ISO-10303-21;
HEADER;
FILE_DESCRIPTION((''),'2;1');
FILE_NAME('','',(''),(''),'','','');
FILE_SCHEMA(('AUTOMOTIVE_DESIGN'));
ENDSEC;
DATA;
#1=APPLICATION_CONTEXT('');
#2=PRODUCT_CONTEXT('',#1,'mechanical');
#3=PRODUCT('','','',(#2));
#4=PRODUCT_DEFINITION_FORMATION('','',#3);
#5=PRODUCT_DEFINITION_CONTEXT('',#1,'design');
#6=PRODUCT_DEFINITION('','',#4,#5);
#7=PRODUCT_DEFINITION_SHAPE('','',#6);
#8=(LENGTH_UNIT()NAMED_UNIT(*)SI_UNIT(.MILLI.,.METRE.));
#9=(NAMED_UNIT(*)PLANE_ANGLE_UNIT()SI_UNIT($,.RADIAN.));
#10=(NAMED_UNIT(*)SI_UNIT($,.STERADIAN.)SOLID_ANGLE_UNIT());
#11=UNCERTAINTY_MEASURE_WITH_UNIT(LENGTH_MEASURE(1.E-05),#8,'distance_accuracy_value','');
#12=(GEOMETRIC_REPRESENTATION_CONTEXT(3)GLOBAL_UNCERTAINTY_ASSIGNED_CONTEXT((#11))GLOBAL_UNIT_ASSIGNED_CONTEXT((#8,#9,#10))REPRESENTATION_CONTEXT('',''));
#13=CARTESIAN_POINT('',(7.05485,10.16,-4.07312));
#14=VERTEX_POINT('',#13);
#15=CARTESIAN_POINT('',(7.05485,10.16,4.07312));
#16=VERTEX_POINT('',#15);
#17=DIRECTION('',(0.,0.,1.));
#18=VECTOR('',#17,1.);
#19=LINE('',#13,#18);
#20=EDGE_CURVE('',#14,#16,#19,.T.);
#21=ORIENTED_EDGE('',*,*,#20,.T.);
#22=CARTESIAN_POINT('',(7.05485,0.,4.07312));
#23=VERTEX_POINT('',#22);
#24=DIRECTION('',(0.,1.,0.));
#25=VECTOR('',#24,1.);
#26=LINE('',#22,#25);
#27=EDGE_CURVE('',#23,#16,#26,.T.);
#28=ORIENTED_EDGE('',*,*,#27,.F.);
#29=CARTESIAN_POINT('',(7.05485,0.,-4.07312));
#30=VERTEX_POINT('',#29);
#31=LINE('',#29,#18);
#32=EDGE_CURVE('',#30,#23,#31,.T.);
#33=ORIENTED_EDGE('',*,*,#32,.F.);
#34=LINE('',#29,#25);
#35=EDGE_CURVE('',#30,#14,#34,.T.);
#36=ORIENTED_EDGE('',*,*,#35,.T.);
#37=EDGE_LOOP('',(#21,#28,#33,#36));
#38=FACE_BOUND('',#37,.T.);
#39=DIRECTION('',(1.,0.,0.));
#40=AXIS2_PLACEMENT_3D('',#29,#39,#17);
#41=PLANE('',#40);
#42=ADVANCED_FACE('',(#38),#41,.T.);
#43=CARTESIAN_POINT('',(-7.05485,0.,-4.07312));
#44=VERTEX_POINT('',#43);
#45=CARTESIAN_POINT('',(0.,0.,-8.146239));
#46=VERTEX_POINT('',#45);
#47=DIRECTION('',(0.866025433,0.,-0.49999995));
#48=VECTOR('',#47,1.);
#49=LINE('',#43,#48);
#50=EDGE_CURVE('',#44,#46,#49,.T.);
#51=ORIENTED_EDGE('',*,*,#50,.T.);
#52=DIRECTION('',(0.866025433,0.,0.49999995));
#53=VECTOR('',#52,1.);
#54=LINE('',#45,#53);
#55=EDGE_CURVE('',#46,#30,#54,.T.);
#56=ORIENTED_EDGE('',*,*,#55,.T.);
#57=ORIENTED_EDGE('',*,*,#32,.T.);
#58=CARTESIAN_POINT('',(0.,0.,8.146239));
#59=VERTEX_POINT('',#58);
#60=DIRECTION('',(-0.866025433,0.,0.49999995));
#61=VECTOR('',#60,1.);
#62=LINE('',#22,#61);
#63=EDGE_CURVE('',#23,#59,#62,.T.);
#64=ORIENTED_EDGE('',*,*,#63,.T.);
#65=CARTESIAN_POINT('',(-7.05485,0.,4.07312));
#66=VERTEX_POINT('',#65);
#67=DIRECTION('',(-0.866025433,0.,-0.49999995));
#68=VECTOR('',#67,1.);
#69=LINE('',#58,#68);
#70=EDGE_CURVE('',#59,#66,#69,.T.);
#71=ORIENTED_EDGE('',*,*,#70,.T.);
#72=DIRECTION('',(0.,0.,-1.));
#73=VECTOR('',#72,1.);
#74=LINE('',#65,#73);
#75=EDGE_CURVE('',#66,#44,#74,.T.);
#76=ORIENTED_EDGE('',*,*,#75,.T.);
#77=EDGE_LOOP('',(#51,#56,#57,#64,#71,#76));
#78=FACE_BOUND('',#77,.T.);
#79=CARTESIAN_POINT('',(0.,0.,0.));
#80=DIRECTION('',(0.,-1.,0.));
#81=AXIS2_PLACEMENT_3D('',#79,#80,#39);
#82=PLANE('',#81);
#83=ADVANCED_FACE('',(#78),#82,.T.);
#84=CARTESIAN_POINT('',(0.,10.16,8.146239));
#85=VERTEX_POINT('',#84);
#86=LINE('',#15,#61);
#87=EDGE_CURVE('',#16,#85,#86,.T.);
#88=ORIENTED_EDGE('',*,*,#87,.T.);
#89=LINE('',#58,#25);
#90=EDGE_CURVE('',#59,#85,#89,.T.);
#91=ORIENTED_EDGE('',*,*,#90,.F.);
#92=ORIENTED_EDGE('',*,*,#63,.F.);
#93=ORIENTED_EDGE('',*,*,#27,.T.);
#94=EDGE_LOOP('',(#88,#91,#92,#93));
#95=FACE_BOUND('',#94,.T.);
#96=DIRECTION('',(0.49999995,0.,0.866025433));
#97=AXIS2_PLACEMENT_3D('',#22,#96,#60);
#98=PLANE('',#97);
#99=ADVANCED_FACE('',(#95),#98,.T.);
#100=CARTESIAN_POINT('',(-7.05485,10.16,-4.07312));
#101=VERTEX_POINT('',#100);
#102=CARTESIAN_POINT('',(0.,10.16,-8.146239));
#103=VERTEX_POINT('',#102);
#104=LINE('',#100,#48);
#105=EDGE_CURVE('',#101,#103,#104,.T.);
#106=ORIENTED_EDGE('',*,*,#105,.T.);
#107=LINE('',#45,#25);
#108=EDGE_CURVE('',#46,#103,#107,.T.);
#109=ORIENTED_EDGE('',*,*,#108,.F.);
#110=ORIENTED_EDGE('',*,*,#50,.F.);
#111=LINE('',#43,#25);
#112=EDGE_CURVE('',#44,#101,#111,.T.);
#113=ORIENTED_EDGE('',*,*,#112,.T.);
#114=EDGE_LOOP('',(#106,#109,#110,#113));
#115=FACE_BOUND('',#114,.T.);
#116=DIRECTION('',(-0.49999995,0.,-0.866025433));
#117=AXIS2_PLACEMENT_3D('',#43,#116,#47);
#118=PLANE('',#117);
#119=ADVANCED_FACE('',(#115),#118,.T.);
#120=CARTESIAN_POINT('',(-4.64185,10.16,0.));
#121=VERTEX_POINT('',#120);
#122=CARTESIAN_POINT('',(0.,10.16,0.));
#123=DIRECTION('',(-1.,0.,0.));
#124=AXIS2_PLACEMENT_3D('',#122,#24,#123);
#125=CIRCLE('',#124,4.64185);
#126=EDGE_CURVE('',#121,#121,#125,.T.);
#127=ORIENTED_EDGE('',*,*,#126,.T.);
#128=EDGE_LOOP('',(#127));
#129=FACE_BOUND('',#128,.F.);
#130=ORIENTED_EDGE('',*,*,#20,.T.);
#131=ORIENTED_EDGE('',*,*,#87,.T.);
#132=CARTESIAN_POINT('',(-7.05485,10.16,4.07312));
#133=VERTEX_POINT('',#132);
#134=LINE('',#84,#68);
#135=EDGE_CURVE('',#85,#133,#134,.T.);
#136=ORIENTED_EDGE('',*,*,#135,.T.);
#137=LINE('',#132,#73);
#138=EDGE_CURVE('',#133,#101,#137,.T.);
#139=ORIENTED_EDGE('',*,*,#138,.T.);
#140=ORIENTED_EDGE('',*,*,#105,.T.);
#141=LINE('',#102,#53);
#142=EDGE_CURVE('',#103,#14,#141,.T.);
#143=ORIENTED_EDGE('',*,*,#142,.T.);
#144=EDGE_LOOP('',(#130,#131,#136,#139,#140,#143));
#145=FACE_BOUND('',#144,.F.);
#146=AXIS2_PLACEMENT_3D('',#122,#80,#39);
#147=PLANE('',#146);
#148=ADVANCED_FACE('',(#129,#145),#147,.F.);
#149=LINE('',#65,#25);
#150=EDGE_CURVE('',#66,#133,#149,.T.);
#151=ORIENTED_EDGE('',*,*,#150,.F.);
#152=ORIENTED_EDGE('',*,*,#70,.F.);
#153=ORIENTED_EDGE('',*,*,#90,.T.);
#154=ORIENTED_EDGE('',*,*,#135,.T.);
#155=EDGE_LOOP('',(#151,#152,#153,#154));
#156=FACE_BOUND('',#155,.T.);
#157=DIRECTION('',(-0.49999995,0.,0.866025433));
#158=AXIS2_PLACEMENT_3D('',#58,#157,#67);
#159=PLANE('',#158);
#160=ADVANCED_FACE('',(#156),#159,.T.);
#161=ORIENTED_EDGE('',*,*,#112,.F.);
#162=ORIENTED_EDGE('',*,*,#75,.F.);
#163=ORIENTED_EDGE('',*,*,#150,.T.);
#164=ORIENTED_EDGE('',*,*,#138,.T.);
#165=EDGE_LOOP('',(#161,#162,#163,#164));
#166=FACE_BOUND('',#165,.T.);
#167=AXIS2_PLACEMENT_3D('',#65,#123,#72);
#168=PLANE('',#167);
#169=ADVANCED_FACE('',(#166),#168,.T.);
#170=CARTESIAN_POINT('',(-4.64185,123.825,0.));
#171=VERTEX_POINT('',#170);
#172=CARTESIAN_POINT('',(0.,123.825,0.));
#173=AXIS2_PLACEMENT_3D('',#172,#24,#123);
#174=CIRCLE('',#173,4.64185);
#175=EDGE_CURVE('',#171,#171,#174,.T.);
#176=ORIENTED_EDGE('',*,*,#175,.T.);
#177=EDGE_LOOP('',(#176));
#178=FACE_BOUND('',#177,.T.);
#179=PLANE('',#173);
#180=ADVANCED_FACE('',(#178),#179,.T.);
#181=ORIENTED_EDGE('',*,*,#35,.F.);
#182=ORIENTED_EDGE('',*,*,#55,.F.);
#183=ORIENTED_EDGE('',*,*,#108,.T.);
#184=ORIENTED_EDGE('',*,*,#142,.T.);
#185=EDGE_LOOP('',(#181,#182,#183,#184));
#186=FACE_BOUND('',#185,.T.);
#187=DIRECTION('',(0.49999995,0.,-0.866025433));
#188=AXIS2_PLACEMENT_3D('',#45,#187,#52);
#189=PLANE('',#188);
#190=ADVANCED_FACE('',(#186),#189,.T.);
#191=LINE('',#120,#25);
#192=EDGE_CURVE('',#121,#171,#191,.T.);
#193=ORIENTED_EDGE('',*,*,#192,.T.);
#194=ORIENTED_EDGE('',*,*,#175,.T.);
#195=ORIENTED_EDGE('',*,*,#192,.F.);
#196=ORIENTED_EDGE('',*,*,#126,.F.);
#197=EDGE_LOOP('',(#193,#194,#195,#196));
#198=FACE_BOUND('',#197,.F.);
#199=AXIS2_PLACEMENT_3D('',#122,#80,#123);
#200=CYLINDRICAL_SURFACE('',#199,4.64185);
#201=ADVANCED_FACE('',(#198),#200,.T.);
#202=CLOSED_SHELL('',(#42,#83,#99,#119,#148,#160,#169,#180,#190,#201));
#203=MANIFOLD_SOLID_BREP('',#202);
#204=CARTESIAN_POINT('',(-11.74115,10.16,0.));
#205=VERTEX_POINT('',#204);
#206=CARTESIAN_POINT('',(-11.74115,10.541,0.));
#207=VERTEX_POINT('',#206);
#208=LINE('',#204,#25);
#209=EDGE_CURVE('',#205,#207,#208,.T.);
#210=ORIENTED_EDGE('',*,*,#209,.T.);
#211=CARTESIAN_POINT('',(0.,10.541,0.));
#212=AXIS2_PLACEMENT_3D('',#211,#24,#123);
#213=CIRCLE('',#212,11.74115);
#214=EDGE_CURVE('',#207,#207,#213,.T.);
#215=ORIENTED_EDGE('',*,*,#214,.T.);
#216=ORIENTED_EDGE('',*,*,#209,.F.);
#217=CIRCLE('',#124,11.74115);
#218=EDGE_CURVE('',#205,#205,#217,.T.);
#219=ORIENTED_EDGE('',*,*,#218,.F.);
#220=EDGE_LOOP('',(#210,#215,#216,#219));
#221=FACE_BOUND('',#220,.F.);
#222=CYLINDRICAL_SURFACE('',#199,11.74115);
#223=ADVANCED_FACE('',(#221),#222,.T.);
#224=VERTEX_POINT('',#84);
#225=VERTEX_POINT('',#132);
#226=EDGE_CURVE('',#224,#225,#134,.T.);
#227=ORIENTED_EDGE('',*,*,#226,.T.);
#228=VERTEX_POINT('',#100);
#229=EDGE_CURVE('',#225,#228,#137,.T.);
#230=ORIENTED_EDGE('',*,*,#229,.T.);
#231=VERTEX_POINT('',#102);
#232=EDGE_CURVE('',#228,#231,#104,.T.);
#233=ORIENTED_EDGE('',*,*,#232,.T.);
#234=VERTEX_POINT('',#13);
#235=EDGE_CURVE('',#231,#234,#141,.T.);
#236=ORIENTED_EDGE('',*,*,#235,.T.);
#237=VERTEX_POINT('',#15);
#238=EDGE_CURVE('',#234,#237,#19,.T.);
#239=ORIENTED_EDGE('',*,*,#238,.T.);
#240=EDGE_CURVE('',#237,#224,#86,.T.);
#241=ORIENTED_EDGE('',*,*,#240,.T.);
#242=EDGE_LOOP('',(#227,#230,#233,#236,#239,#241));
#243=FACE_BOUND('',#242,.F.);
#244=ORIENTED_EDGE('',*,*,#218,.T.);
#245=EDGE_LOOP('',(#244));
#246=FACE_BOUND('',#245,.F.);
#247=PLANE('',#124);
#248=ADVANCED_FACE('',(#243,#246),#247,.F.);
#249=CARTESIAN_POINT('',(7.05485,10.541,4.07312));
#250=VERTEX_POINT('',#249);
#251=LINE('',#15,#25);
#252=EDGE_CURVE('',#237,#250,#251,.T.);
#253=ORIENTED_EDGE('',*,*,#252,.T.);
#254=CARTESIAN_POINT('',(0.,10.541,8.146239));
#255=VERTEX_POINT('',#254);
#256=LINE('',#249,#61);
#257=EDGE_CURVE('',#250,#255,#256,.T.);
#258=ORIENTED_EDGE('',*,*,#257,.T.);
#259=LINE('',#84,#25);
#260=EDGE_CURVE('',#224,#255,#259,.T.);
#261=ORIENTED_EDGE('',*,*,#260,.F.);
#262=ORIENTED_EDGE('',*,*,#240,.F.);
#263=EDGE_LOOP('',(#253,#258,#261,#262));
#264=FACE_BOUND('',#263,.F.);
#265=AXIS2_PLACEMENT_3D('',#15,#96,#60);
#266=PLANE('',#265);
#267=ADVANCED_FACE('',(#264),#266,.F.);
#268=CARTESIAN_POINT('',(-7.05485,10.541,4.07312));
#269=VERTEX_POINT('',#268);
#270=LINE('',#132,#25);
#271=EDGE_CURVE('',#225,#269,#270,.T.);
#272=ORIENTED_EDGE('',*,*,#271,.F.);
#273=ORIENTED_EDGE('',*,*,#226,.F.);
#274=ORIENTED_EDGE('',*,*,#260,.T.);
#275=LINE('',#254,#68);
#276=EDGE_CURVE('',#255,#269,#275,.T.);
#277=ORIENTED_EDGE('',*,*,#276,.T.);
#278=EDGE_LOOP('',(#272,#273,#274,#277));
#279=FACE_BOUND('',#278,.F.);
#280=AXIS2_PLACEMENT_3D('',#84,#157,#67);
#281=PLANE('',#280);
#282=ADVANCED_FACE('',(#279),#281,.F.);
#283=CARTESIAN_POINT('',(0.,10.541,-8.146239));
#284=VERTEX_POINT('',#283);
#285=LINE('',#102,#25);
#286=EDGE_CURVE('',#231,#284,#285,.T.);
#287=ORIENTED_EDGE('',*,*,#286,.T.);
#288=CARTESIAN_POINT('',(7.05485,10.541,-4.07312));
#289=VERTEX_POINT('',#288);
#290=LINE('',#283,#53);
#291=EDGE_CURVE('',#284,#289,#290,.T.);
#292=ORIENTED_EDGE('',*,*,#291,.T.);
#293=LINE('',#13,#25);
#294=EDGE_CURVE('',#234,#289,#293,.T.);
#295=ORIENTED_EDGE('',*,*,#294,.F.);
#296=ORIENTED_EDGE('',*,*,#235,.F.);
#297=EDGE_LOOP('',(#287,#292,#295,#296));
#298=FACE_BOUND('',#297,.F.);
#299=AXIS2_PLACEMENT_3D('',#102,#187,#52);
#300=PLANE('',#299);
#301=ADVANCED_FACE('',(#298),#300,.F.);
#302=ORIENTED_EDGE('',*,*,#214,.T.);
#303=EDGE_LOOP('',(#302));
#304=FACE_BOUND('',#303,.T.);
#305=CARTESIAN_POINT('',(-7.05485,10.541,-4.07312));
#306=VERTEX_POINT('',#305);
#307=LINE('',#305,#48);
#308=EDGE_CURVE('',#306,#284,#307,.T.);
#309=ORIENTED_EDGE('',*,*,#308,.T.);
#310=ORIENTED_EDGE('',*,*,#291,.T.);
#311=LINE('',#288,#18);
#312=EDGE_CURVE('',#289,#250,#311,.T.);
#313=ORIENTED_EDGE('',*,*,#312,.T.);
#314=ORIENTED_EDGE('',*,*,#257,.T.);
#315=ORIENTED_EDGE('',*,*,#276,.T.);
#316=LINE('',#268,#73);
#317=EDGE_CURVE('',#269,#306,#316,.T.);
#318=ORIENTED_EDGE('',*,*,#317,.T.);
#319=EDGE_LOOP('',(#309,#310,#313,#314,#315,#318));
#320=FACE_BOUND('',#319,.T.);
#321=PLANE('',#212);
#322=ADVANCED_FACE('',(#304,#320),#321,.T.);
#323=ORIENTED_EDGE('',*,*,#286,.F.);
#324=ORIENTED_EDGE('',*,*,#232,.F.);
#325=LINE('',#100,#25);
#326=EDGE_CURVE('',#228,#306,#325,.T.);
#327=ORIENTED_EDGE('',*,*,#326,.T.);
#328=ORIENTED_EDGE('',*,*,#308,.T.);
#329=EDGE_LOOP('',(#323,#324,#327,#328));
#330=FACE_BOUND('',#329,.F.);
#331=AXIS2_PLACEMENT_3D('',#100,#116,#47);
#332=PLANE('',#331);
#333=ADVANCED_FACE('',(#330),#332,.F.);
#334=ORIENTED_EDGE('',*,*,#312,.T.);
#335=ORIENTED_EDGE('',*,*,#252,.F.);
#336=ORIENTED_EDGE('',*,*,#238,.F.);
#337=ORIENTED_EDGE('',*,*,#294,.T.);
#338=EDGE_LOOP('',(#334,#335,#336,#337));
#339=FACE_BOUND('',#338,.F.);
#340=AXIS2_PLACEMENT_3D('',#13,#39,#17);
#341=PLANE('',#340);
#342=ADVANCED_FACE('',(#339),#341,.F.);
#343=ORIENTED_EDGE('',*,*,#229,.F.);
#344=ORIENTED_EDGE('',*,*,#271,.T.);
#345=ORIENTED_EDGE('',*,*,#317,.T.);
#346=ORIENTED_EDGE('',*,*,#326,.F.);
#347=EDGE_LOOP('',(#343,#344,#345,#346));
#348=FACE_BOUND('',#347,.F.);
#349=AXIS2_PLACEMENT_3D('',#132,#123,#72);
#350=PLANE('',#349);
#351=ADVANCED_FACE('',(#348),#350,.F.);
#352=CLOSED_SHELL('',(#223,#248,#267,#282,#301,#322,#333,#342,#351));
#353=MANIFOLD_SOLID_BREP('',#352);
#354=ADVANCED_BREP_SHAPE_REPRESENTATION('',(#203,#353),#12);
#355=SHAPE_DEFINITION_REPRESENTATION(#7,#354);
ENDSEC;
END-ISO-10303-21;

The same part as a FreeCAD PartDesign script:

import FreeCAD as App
import Part
import Sketcher
from FreeCAD import Vector
Q = App.Units.Quantity

doc = App.newDocument("Part")
params = doc.addObject("Spreadsheet::Sheet", "Params")
for row, (alias, value) in enumerate([
    ("pad1_length", "0.4 in"),
    ("pad2_length", "4.475 in"),
    ("pad3_length", "0.015 in"),
], start=1):
    params.set(f"A{row}", alias)
    params.set(f"B{row}", "=" + value)
    params.setAlias(f"B{row}", alias)

body = doc.addObject("PartDesign::Body", "Body")

# Sketch on XZ plane
sketch1 = doc.addObject("Sketcher::SketchObject", "Sketch")
body.addObject(sketch1)
sketch1.AttachmentSupport = (doc.XZ_Plane, [""])
sketch1.MapMode = "FlatFace"
sketch1.addGeometry([
    Part.LineSegment(Vector(7.05485, -4.07312, 0), Vector(7.05485, 4.07312, 0)),  # 0
    Part.LineSegment(Vector(7.05485, 4.07312, 0), Vector(0, 8.146239, 0)),  # 1
    Part.LineSegment(Vector(0, 8.146239, 0), Vector(-7.05485, 4.07312, 0)),  # 2
    Part.LineSegment(Vector(-7.05485, 4.07312, 0), Vector(-7.05485, -4.07312, 0)),  # 3
    Part.LineSegment(Vector(-7.05485, -4.07312, 0), Vector(0, -8.146239, 0)),  # 4
    Part.LineSegment(Vector(0, -8.146239, 0), Vector(7.05485, -4.07312, 0)),  # 5
], False)
sketch1.addConstraint([
    Sketcher.Constraint("Coincident", 0, 2, 1, 1),
    Sketcher.Constraint("Coincident", 1, 2, 2, 1),
    Sketcher.Constraint("Coincident", 2, 2, 3, 1),
    Sketcher.Constraint("Coincident", 3, 2, 4, 1),
    Sketcher.Constraint("Coincident", 4, 2, 5, 1),
    Sketcher.Constraint("Coincident", 5, 2, 0, 1),
    Sketcher.Constraint("Vertical", 0),
    Sketcher.Constraint("Vertical", 3),
    Sketcher.Constraint("Symmetric", 0, 2, 3, 2, -1, 1),
    Sketcher.Constraint("Symmetric", 1, 2, 4, 2, -1, 1),
    Sketcher.Constraint("PointOnObject", 1, 2, -2),
    Sketcher.Constraint("Parallel", 2, 5),
    Sketcher.Constraint("Horizontal", 0, 2, 2, 2),
    Sketcher.Constraint("Angle", 1, Q("150.000003 deg")),
    Sketcher.Constraint("DistanceX", 2, 2, 0, 2, Q("0.5555 in")),
    Sketcher.Constraint("DistanceY", 0, 1, 0, 2, Q("8.14624 mm")),
])
pad1 = doc.addObject("PartDesign::Pad", "Pad")
body.addObject(pad1)
pad1.Profile = sketch1
pad1.setExpression("Length", "Params.pad1_length")
pad1.Reversed = True

# Sketch on XZ plane
sketch2 = doc.addObject("Sketcher::SketchObject", "Sketch001")
body.addObject(sketch2)
sketch2.AttachmentSupport = (doc.XZ_Plane, [""])
sketch2.MapMode = "FlatFace"
sketch2.AttachmentOffset = App.Placement(Vector(0, 0, -0.4 * 25.4), App.Rotation())
sketch2.addGeometry(Part.Circle(Vector(0, 0, 0), Vector(0, 0, 1), 4.64185), False)
sketch2.addConstraint([
    Sketcher.Constraint("Coincident", 0, 3, -1, 1),
    Sketcher.Constraint("Diameter", 0, Q("0.3655 in")),
])
pad2 = doc.addObject("PartDesign::Pad", "Pad001")
body.addObject(pad2)
pad2.Profile = sketch2
pad2.setExpression("Length", "Params.pad2_length")
pad2.Reversed = True
body2 = doc.addObject("PartDesign::Body", "Body001")

# Sketch on XZ plane
sketch3 = doc.addObject("Sketcher::SketchObject", "Sketch002")
body2.addObject(sketch3)
sketch3.AttachmentSupport = (doc.getObject("XZ_Plane001"), [""])
sketch3.MapMode = "FlatFace"
sketch3.AttachmentOffset = App.Placement(Vector(0, 0, -0.4 * 25.4), App.Rotation())
sketch3.addGeometry([
    Part.Circle(Vector(0, 0, 0), Vector(0, 0, 1), 11.74115),  # 0
    Part.LineSegment(Vector(0, -8.146239, 0), Vector(7.05485, -4.07312, 0)),  # 1
    Part.LineSegment(Vector(7.05485, -4.07312, 0), Vector(7.05485, 4.07312, 0)),  # 2
    Part.LineSegment(Vector(7.05485, 4.07312, 0), Vector(0, 8.146239, 0)),  # 3
    Part.LineSegment(Vector(0, 8.146239, 0), Vector(-7.05485, 4.07312, 0)),  # 4
    Part.LineSegment(Vector(-7.05485, 4.07312, 0), Vector(-7.05485, -4.07312, 0)),  # 5
    Part.LineSegment(Vector(-7.05485, -4.07312, 0), Vector(0, -8.146239, 0)),  # 6
], False)
sketch3.addConstraint([
    Sketcher.Constraint("Coincident", 1, 2, 2, 1),
    Sketcher.Constraint("Coincident", 2, 2, 3, 1),
    Sketcher.Constraint("Coincident", 3, 2, 4, 1),
    Sketcher.Constraint("Coincident", 4, 2, 5, 1),
    Sketcher.Constraint("Coincident", 5, 2, 6, 1),
    Sketcher.Constraint("Coincident", 6, 2, 1, 1),
    Sketcher.Constraint("Vertical", 2),
    Sketcher.Constraint("Vertical", 5),
    Sketcher.Constraint("Coincident", 0, 3, -1, 1),
    Sketcher.Constraint("Symmetric", 1, 2, 4, 2, -1, 1),
    Sketcher.Constraint("Symmetric", 3, 2, 6, 2, -1, 1),
    Sketcher.Constraint("PointOnObject", 3, 2, -2),
    Sketcher.Constraint("Parallel", 3, 6),
    Sketcher.Constraint("Horizontal", 2, 2, 4, 2),
    Sketcher.Constraint("Angle", 1, Q("29.999997 deg")),
    Sketcher.Constraint("Diameter", 0, Q("0.9245 in")),
    Sketcher.Constraint("DistanceX", 4, 2, 2, 2, Q("0.5555 in")),
    Sketcher.Constraint("DistanceY", 2, 1, 2, 2, Q("8.14624 mm")),
])
pad3 = doc.addObject("PartDesign::Pad", "Pad002")
body2.addObject(pad3)
pad3.Profile = sketch3
pad3.setExpression("Length", "Params.pad3_length")
pad3.Reversed = True

doc.recompute()
